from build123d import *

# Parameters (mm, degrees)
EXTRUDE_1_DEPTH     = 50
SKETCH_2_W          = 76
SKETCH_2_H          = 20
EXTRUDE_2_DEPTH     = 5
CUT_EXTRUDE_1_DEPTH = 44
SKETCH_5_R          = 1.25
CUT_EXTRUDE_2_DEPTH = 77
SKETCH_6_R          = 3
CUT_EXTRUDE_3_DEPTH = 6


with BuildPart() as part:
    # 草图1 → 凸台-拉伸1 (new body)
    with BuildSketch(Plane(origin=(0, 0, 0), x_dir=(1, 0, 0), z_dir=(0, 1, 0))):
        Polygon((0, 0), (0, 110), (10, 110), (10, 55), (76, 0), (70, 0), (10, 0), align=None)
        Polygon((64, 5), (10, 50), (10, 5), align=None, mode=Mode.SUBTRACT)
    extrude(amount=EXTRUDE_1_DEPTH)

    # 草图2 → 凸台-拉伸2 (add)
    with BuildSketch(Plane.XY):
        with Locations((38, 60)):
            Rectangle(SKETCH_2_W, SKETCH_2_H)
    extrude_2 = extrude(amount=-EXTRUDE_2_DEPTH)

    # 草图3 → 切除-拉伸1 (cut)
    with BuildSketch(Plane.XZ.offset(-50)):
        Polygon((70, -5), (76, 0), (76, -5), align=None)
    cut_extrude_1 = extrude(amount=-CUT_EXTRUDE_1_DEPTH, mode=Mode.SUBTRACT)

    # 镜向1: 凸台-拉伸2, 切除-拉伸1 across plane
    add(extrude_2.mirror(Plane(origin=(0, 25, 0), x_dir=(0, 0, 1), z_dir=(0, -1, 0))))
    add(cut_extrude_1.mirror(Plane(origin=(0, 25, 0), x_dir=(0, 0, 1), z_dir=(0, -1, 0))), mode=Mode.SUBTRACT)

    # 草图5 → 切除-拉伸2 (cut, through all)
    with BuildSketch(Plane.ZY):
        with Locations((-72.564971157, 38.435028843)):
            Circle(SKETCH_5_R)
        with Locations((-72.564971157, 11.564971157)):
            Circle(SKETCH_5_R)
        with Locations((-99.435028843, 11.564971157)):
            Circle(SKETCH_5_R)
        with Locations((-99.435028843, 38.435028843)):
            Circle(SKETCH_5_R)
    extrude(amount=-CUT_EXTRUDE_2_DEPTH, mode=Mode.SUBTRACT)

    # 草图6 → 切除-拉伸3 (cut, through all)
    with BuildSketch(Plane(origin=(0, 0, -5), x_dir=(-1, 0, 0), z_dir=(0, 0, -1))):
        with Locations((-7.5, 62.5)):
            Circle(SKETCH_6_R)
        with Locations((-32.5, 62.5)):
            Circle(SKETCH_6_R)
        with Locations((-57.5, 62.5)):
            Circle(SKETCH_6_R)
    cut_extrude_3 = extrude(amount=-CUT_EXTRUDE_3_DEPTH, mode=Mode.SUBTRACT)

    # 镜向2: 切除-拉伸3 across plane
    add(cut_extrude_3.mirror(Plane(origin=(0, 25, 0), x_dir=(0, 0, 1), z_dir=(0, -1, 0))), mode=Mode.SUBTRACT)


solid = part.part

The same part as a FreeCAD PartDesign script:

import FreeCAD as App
import Part
import Sketcher
from FreeCAD import Vector
Q = App.Units.Quantity


def add_polygon(sketch, points):
    """Adds a closed chain of lines whose ends are joined by coincident constraints."""
    first, n = sketch.GeometryCount, len(points)
    for a, b in zip(points, points[1:] + points[:1]):
        sketch.addGeometry(Part.LineSegment(App.Vector(*a, 0), App.Vector(*b, 0)), False)
    for i in range(n):
        sketch.addConstraint(Sketcher.Constraint("Coincident", first + i, 2, first + (i + 1) % n, 1))

doc = App.newDocument("Part")
body = doc.addObject("PartDesign::Body", "Body")

# Sketch on XZ plane
sketch1 = body.newObject("Sketcher::SketchObject", "Sketch")
sketch1.AttachmentSupport = (doc.getObject("XZ_Plane"), [""])
sketch1.MapMode = "FlatFace"
add_polygon(sketch1, [(0, -110), (0, 0), (76, 0), (10, -55), (10, -110)])  # lines 0-4
add_polygon(sketch1, [(64, -5), (10, -5), (10, -50)])  # lines 5-7
sketch1.addConstraint(Sketcher.Constraint("Vertical", 0))
sketch1.addConstraint(Sketcher.Constraint("Horizontal", 1))
sketch1.addConstraint(Sketcher.Constraint("Vertical", 3))
sketch1.addConstraint(Sketcher.Constraint("Horizontal", 4))
sketch1.addConstraint(Sketcher.Constraint("Horizontal", 5))
sketch1.addConstraint(Sketcher.Constraint("Vertical", 6))
sketch1.addConstraint(Sketcher.Constraint("Coincident", 0, 2, -1, 1))
sketch1.addConstraint(Sketcher.Constraint("Parallel", 2, 7))
sketch1.addConstraint(Sketcher.Constraint("Vertical", 3, 2, 5, 2))
sketch1.addConstraint(Sketcher.Constraint("DistanceX", 1, 1, 1, 2, Q("76 mm")))
sketch1.addConstraint(Sketcher.Constraint("DistanceX", 4, 2, 4, 1, Q("10 mm")))
sketch1.addConstraint(Sketcher.Constraint("DistanceX", 5, 2, 5, 1, Q("54 mm")))
sketch1.addConstraint(Sketcher.Constraint("DistanceY", 0, 1, 0, 2, Q("110 mm")))
sketch1.addConstraint(Sketcher.Constraint("DistanceY", 3, 2, 3, 1, Q("55 mm")))
sketch1.addConstraint(Sketcher.Constraint("DistanceY", 5, 2, -1, 1, Q("5 mm")))
pad1 = body.newObject("PartDesign::Pad", "Pad")
pad1.Profile = sketch1
pad1.Length = 50
pad1.Reversed = True

# Sketch on XY plane
sketch2 = body.newObject("Sketcher::SketchObject", "Sketch001")
sketch2.AttachmentSupport = (doc.getObject("XY_Plane"), [""])
sketch2.MapMode = "FlatFace"
add_polygon(sketch2, [(0, 70), (0, 50), (76, 50), (76, 70)])  # lines 0-3
sketch2.addConstraint(Sketcher.Constraint("Vertical", 0))
sketch2.addConstraint(Sketcher.Constraint("Horizontal", 1))
sketch2.addConstraint(Sketcher.Constraint("Vertical", 2))
sketch2.addConstraint(Sketcher.Constraint("Horizontal", 3))
sketch2.addConstraint(Sketcher.Constraint("PointOnObject", 0, 2, -2))
sketch2.addConstraint(Sketcher.Constraint("DistanceX", 1, 1, 1, 2, Q("76 mm")))
sketch2.addConstraint(Sketcher.Constraint("DistanceY", 0, 2, 0, 1, Q("20 mm")))
sketch2.addConstraint(Sketcher.Constraint("DistanceY", -1, 1, 0, 2, Q("50 mm")))
pad2 = body.newObject("PartDesign::Pad", "Pad001")
pad2.Profile = sketch2
pad2.Length = 5
pad2.Reversed = True

# Sketch on XZ plane
sketch3 = body.newObject("Sketcher::SketchObject", "Sketch002")
sketch3.AttachmentSupport = (doc.getObject("XZ_Plane"), [""])
sketch3.MapMode = "FlatFace"
sketch3.AttachmentOffset = App.Placement(Vector(0, 0, -50), App.Rotation())
add_polygon(sketch3, [(76, 0), (70, -5), (76, -5)])  # lines 0-2
sketch3.addConstraint(Sketcher.Constraint("Horizontal", 1))
sketch3.addConstraint(Sketcher.Constraint("Vertical", 2))
sketch3.addConstraint(Sketcher.Constraint("PointOnObject", 2, 2, -1))
sketch3.addConstraint(Sketcher.Constraint("DistanceX", 1, 1, 1, 2, Q("6 mm")))
sketch3.addConstraint(Sketcher.Constraint("DistanceY", 2, 1, 2, 2, Q("5 mm")))
sketch3.addConstraint(Sketcher.Constraint("DistanceX", -1, 1, 0, 2, Q("70 mm")))
pocket1 = body.newObject("PartDesign::Pocket", "Pocket")
pocket1.Profile = sketch3
pocket1.Length = 44
doc.recompute()

datumplane = body.newObject("PartDesign::Plane", "DatumPlane")
datumplane.AttachmentSupport = (doc.getObject("XZ_Plane"), [""])
datumplane.MapMode = "FlatFace"
datumplane.AttachmentOffset = App.Placement(Vector(0, 0, -25), App.Rotation())
mirrored = body.newObject("PartDesign::Mirrored", "Mirrored")
mirrored.Originals = [pad2, pocket1]
mirrored.MirrorPlane = (datumplane, [""])
body.Tip = mirrored

# Sketch on YZ plane
sketch4 = body.newObject("Sketcher::SketchObject", "Sketch003")
sketch4.AttachmentSupport = (doc.getObject("YZ_Plane"), [""])
sketch4.MapMode = "FlatFace"
sketch4.addGeometry(Part.Circle(Vector(38.4, -72.6, 0), Vector(0, 0, 1), 1.2), False)
sketch4.addGeometry(Part.Circle(Vector(11.6, -72.6, 0), Vector(0, 0, 1), 1.2), False)
sketch4.addGeometry(Part.Circle(Vector(11.6, -99.4, 0), Vector(0, 0, 1), 1.2), False)
sketch4.addGeometry(Part.Circle(Vector(38.4, -99.4, 0), Vector(0, 0, 1), 1.2), False)
sketch4.addConstraint(Sketcher.Constraint("Equal", 0, 1))
sketch4.addConstraint(Sketcher.Constraint("Equal", 1, 2))
sketch4.addConstraint(Sketcher.Constraint("Equal", 2, 3))
sketch4.addConstraint(Sketcher.Constraint("Horizontal", 0, 3, 1, 3))
sketch4.addConstraint(Sketcher.Constraint("Horizontal", 2, 3, 3, 3))
sketch4.addConstraint(Sketcher.Constraint("Vertical", 1, 3, 2, 3))
sketch4.addConstraint(Sketcher.Constraint("Vertical", 0, 3, 3, 3))
sketch4.addConstraint(Sketcher.Constraint("Diameter", 0, Q("2.5 mm")))
sketch4.addConstraint(Sketcher.Constraint("DistanceX", -1, 1, 0, 3, Q("38.435029 mm")))
sketch4.addConstraint(Sketcher.Constraint("DistanceY", 0, 3, -1, 1, Q("72.564971 mm")))
sketch4.addConstraint(Sketcher.Constraint("DistanceX", -1, 1, 1, 3, Q("11.564971 mm")))
sketch4.addConstraint(Sketcher.Constraint("DistanceY", 2, 3, -1, 1, Q("99.435029 mm")))
pocket2 = body.newObject("PartDesign::Pocket", "Pocket001")
pocket2.Profile = sketch4
pocket2.Type = "ThroughAll"
pocket2.Reversed = True

# Sketch on XY plane
sketch5 = body.newObject("Sketcher::SketchObject", "Sketch004")
sketch5.AttachmentSupport = (doc.getObject("XY_Plane"), [""])
sketch5.MapMode = "FlatFace"
sketch5.AttachmentOffset = App.Placement(Vector(0, 0, -5), App.Rotation())
sketch5.addGeometry(Part.Circle(Vector(7.5, 62.5, 0), Vector(0, 0, 1), 3), False)
sketch5.addGeometry(Part.Circle(Vector(32.5, 62.5, 0), Vector(0, 0, 1), 3), False)
sketch5.addGeometry(Part.Circle(Vector(57.5, 62.5, 0), Vector(0, 0, 1), 3), False)
sketch5.addConstraint(Sketcher.Constraint("Equal", 0, 1))
sketch5.addConstraint(Sketcher.Constraint("Equal", 1, 2))
sketch5.addConstraint(Sketcher.Constraint("Horizontal", 0, 3, 1, 3))
sketch5.addConstraint(Sketcher.Constraint("Horizontal", 1, 3, 2, 3))
sketch5.addConstraint(Sketcher.Constraint("Diameter", 0, Q("6 mm")))
sketch5.addConstraint(Sketcher.Constraint("DistanceX", 0, 3, 1, 3, Q("25 mm")))
sketch5.addConstraint(Sketcher.Constraint("DistanceX", 1, 3, 2, 3, Q("25 mm")))
sketch5.addConstraint(Sketcher.Constraint("DistanceX", -1, 1, 0, 3, Q("7.5 mm")))
sketch5.addConstraint(Sketcher.Constraint("DistanceY", -1, 1, 0, 3, Q("62.5 mm")))
pocket3 = body.newObject("PartDesign::Pocket", "Pocket002")
pocket3.Profile = sketch5
pocket3.Type = "ThroughAll"
pocket3.Reversed = True
doc.recompute()

datumplane2 = body.newObject("PartDesign::Plane", "DatumPlane001")
datumplane2.AttachmentSupport = (doc.getObject("XZ_Plane"), [""])
datumplane2.MapMode = "FlatFace"
datumplane2.AttachmentOffset = App.Placement(Vector(0, 0, -25), App.Rotation())
mirrored2 = body.newObject("PartDesign::Mirrored", "Mirrored001")
mirrored2.Originals = [pocket3]
mirrored2.MirrorPlane = (datumplane2, [""])
body.Tip = mirrored2

doc.recompute()
